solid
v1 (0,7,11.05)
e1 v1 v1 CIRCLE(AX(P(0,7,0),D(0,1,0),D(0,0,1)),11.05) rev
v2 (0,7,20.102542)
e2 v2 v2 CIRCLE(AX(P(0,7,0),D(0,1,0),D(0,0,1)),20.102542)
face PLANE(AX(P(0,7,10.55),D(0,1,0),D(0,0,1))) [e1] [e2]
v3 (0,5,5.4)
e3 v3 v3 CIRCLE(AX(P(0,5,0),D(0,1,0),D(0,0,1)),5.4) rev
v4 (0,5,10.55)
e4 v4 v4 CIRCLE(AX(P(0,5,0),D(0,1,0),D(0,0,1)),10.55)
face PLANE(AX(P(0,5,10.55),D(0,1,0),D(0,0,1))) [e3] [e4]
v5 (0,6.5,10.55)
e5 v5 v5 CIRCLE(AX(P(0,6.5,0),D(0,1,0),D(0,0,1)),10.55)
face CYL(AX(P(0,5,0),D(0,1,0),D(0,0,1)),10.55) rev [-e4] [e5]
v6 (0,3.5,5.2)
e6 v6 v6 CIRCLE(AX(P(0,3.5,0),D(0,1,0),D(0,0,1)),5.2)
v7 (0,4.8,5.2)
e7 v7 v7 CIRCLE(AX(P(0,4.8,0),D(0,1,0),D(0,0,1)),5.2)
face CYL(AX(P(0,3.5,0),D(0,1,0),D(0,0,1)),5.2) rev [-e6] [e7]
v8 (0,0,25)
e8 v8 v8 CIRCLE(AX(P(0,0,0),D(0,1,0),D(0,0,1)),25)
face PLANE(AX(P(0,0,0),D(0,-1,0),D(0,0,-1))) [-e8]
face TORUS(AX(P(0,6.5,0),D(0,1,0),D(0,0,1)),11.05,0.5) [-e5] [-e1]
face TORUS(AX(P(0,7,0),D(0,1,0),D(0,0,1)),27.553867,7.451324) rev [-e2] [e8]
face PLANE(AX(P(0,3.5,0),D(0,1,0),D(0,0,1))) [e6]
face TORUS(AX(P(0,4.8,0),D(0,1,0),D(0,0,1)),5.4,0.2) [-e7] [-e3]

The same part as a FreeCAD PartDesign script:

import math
import FreeCAD as App
import Part
import Sketcher

V = App.Vector


def edges_at(feature, points):
    """Names of the edges that pass closest to the given points."""
    edges = feature.Shape.Edges
    near = lambda p: min(range(len(edges)), key=lambda i: edges[i].distToShape(Part.Vertex(*p))[0])
    return sorted({f"Edge{near(p) + 1}" for p in points})

doc = App.newDocument("Part")
params = doc.addObject("Spreadsheet::Sheet", "Params")
for row, (alias, value) in enumerate([
    ("sketch1_width", "5 mm"),
    ("sketch1_width2", "2 mm"),
    ("sketch1_height", "25 mm"),
    ("sketch1_height2", "10.55 mm"),
    ("revolution_angle", "360 deg"),
    ("fillet_radius", "0.5 mm"),
    ("sketch2_diameter", "10.4 mm"),
    ("pocket1_length", "1.5 mm"),
    ("fillet2_radius", "0.2 mm"),
], start=1):
    params.set(f"A{row}", alias)
    params.set(f"B{row}", "=" + value)
    params.setAlias(f"B{row}", alias)

body = doc.addObject("PartDesign::Body", "Body")

# Sketch on YZ plane
sketch1 = body.newObject("Sketcher::SketchObject", "Sketch")
sketch1.AttachmentSupport = (doc.getObject("YZ_Plane"), [""])
sketch1.MapMode = "FlatFace"
sketch1.addGeometry([
    Part.LineSegment(V(0, 25, 0), V(0, 0, 0)),  # 0
    Part.LineSegment(V(0, 0, 0), V(5, 0, 0)),  # 1
    Part.LineSegment(V(5, 0, 0), V(5, 10.6, 0)),  # 2
    Part.LineSegment(V(5, 10.6, 0), V(7, 10.6, 0)),  # 3
    Part.LineSegment(V(7, 10.6, 0), V(7, 20.1, 0)),  # 4
    Part.ArcOfCircle(Part.Circle(V(7, 27.6, 0), V(0, 0, 1), 7.5), math.radians(-160), math.radians(-90)),  # 5
], False)
sketch1.addConstraint([
    Sketcher.Constraint("Coincident", 0, 2, 1, 1),
    Sketcher.Constraint("Coincident", 1, 2, 2, 1),
    Sketcher.Constraint("Coincident", 2, 2, 3, 1),
    Sketcher.Constraint("Coincident", 3, 2, 4, 1),
    Sketcher.Constraint("Coincident", 4, 2, 5, 2),
    Sketcher.Constraint("Coincident", 5, 1, 0, 1),
    Sketcher.Constraint("Vertical", 0),
    Sketcher.Constraint("Horizontal", 1),
    Sketcher.Constraint("Vertical", 2),
    Sketcher.Constraint("Horizontal", 3),
    Sketcher.Constraint("Vertical", 4),
    Sketcher.Constraint("Coincident", 0, 2, -1, 1),
    Sketcher.Constraint("Vertical", 5, 3, 3, 2),
    Sketcher.Constraint("DistanceX", 1, 1, 1, 2, 5.0),
    Sketcher.Constraint("DistanceX", 3, 1, 3, 2, 2.0),
    Sketcher.Constraint("DistanceY", 0, 2, 0, 1, 25.0),
    Sketcher.Constraint("DistanceY", 2, 1, 2, 2, 10.55),
    Sketcher.Constraint("Radius", 5, 7.451324),
])
sketch1.setExpression("Constraints[13]", "Params.sketch1_width")
sketch1.setExpression("Constraints[14]", "Params.sketch1_width2")
sketch1.setExpression("Constraints[15]", "Params.sketch1_height")
sketch1.setExpression("Constraints[16]", "Params.sketch1_height2")
revolution = body.newObject("PartDesign::Revolution", "Revolution")
revolution.Profile = sketch1
revolution.ReferenceAxis = (sketch1, ["H_Axis"])
revolution.setExpression("Angle", "Params.revolution_angle")
doc.recompute()

fillet = body.newObject("PartDesign::Fillet", "Fillet")
fillet.Base = (revolution, edges_at(revolution, [(0, 7, -10.55)]))
fillet.setExpression("Radius", "Params.fillet_radius")

# Sketch on XZ plane
sketch2 = body.newObject("Sketcher::SketchObject", "Sketch001")
sketch2.AttachmentSupport = (doc.getObject("XZ_Plane"), [""])
sketch2.MapMode = "FlatFace"
sketch2.AttachmentOffset = App.Placement(V(0, 0, -5), App.Rotation())
sketch2.addGeometry(Part.Circle(V(0, 0, 0), V(0, 0, 1), 5), False)
sketch2.addConstraint([
    Sketcher.Constraint("Coincident", 0, 3, -1, 1),
    Sketcher.Constraint("Diameter", 0, 10.4),
])
sketch2.setExpression("Constraints[1]", "Params.sketch2_diameter")
pocket1 = body.newObject("PartDesign::Pocket", "Pocket")
pocket1.Profile = sketch2
pocket1.setExpression("Length", "Params.pocket1_length")
pocket1.Reversed = True
doc.recompute()

fillet2 = body.newObject("PartDesign::Fillet", "Fillet001")
fillet2.Base = (pocket1, edges_at(pocket1, [(0, 5, -5.2)]))
fillet2.setExpression("Radius", "Params.fillet2_radius")

doc.recompute()
